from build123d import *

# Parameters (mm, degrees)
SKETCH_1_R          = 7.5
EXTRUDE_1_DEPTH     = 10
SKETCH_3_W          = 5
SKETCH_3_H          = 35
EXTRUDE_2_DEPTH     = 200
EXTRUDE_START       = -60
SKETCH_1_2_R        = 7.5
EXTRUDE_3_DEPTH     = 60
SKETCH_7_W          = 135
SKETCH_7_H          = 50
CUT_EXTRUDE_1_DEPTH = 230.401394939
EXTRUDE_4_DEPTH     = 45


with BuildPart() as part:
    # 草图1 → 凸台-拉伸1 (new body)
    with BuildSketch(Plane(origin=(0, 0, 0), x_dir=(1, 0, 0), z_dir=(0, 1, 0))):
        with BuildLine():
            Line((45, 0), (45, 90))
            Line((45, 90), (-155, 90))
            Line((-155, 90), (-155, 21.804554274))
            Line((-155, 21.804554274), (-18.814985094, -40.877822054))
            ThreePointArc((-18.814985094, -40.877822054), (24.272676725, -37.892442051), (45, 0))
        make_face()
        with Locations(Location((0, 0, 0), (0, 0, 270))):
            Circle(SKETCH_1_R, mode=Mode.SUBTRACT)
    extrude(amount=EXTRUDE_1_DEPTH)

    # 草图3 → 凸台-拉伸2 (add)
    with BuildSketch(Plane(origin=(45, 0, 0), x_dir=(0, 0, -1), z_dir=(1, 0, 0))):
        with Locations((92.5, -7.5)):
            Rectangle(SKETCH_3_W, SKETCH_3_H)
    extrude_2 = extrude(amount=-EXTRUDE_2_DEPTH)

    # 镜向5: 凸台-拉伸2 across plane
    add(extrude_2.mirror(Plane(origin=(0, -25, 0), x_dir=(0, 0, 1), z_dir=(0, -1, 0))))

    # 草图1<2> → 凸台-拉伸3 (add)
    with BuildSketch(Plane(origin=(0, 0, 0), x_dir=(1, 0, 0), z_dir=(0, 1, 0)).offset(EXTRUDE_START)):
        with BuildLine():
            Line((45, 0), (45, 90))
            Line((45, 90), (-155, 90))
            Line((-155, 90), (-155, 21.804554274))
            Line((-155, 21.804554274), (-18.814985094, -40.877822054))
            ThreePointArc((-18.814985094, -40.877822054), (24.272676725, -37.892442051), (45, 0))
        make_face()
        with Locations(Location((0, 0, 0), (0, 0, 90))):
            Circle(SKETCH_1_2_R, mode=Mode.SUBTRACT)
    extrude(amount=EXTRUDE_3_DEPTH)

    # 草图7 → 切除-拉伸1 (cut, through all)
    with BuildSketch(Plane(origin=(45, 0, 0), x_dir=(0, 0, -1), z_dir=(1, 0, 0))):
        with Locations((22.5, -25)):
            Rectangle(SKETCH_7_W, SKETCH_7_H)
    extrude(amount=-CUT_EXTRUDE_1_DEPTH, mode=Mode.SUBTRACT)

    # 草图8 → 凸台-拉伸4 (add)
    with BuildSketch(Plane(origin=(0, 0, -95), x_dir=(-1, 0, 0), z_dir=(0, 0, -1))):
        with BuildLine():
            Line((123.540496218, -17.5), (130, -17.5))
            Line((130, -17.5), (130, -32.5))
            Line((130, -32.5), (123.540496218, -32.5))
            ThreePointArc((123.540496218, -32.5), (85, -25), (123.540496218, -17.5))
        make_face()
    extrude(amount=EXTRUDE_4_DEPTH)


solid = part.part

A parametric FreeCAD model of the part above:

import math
import FreeCAD as App
import Part
import Sketcher

V = App.Vector
Q = App.Units.Quantity


def add_polygon(sketch, points):
    """Adds a closed chain of lines whose ends are joined by coincident constraints."""
    first, n = sketch.GeometryCount, len(points)
    for a, b in zip(points, points[1:] + points[:1]):
        sketch.addGeometry(Part.LineSegment(App.Vector(*a, 0), App.Vector(*b, 0)), False)
    for i in range(n):
        sketch.addConstraint(Sketcher.Constraint("Coincident", first + i, 2, first + (i + 1) % n, 1))

doc = App.newDocument("Part")
body = doc.addObject("PartDesign::Body", "Body")

# Sketch on XZ plane
sketch1 = body.newObject("Sketcher::SketchObject", "Sketch")
sketch1.AttachmentSupport = (doc.getObject("XZ_Plane"), [""])
sketch1.MapMode = "FlatFace"
sketch1.addGeometry(Part.LineSegment(V(45, 0, 0), V(45, -90, 0)), False)
sketch1.addGeometry(Part.LineSegment(V(45, -90, 0), V(-155, -90, 0)), False)
sketch1.addGeometry(Part.LineSegment(V(-155, -90, 0), V(-155, -22, 0)), False)
sketch1.addGeometry(Part.LineSegment(V(-155, -22, 0), V(-19, 41, 0)), False)
sketch1.addGeometry(Part.ArcOfCircle(Part.Circle(V(0, 0, 0), V(0, 0, 1), 45), math.radians(0), math.radians(115)), False)
sketch1.addGeometry(Part.Circle(V(0, 0, 0), V(0, 0, 1), 8), False)
sketch1.addConstraint(Sketcher.Constraint("Coincident", 0, 2, 1, 1))
sketch1.addConstraint(Sketcher.Constraint("Coincident", 1, 2, 2, 1))
sketch1.addConstraint(Sketcher.Constraint("Coincident", 2, 2, 3, 1))
sketch1.addConstraint(Sketcher.Constraint("Tangent", 3, 2, 4, 2))
sketch1.addConstraint(Sketcher.Constraint("Tangent", 4, 1, 0, 1))
sketch1.addConstraint(Sketcher.Constraint("Vertical", 0))
sketch1.addConstraint(Sketcher.Constraint("Horizontal", 1))
sketch1.addConstraint(Sketcher.Constraint("Vertical", 2))
sketch1.addConstraint(Sketcher.Constraint("Coincident", 4, 3, -1, 1))
sketch1.addConstraint(Sketcher.Constraint("Coincident", 5, 3, -1, 1))
sketch1.addConstraint(Sketcher.Constraint("Diameter", 5, Q("15 mm")))
sketch1.addConstraint(Sketcher.Constraint("Radius", 4, Q("45 mm")))
sketch1.addConstraint(Sketcher.Constraint("DistanceX", 1, 2, 1, 1, Q("200 mm")))
sketch1.addConstraint(Sketcher.Constraint("DistanceY", 0, 2, 0, 1, Q("90 mm")))
sketch1.addConstraint(Sketcher.Constraint("DistanceY", 2, 1, 2, 2, Q("68.195446 mm")))
pad1 = body.newObject("PartDesign::Pad", "Pad")
pad1.Profile = sketch1
pad1.Length = 10
pad1.Reversed = True

# Sketch on YZ plane
sketch2 = body.newObject("Sketcher::SketchObject", "Sketch001")
sketch2.AttachmentSupport = (doc.getObject("YZ_Plane"), [""])
sketch2.MapMode = "FlatFace"
sketch2.AttachmentOffset = App.Placement(V(0, 0, 45), App.Rotation())
add_polygon(sketch2, [(10, -90), (-25, -90), (-25, -95), (10, -95)])  # lines 0-3
sketch2.addConstraint(Sketcher.Constraint("Horizontal", 0))
sketch2.addConstraint(Sketcher.Constraint("Vertical", 1))
sketch2.addConstraint(Sketcher.Constraint("Horizontal", 2))
sketch2.addConstraint(Sketcher.Constraint("Vertical", 3))
sketch2.addConstraint(Sketcher.Constraint("DistanceX", 0, 2, 0, 1, Q("35 mm")))
sketch2.addConstraint(Sketcher.Constraint("DistanceY", 1, 2, 1, 1, Q("5 mm")))
sketch2.addConstraint(Sketcher.Constraint("DistanceX", 0, 2, -1, 1, Q("25 mm")))
sketch2.addConstraint(Sketcher.Constraint("DistanceY", 0, 2, -1, 1, Q("90 mm")))
pad2 = body.newObject("PartDesign::Pad", "Pad001")
pad2.Profile = sketch2
pad2.Length = 200
pad2.Reversed = True
doc.recompute()

datumplane = body.newObject("PartDesign::Plane", "DatumPlane")
datumplane.AttachmentSupport = (doc.getObject("XZ_Plane"), [""])
datumplane.MapMode = "FlatFace"
datumplane.AttachmentOffset = App.Placement(V(0, 0, 25), App.Rotation())
mirrored = body.newObject("PartDesign::Mirrored", "Mirrored")
mirrored.Originals = [pad2]
mirrored.MirrorPlane = (datumplane, [""])
body.Tip = mirrored

# Sketch on XZ plane
sketch3 = body.newObject("Sketcher::SketchObject", "Sketch002")
sketch3.AttachmentSupport = (doc.getObject("XZ_Plane"), [""])
sketch3.MapMode = "FlatFace"
sketch3.AttachmentOffset = App.Placement(V(0, 0, 60), App.Rotation())
sketch3.addGeometry(Part.LineSegment(V(45, 0, 0), V(45, -90, 0)), False)
sketch3.addGeometry(Part.LineSegment(V(45, -90, 0), V(-155, -90, 0)), False)
sketch3.addGeometry(Part.LineSegment(V(-155, -90, 0), V(-155, -22, 0)), False)
sketch3.addGeometry(Part.LineSegment(V(-155, -22, 0), V(-19, 41, 0)), False)
sketch3.addGeometry(Part.ArcOfCircle(Part.Circle(V(0, 0, 0), V(0, 0, 1), 45), math.radians(0), math.radians(115)), False)
sketch3.addGeometry(Part.Circle(V(0, 0, 0), V(0, 0, 1), 8), False)
sketch3.addConstraint(Sketcher.Constraint("Coincident", 0, 2, 1, 1))
sketch3.addConstraint(Sketcher.Constraint("Coincident", 1, 2, 2, 1))
sketch3.addConstraint(Sketcher.Constraint("Coincident", 2, 2, 3, 1))
sketch3.addConstraint(Sketcher.Constraint("Tangent", 3, 2, 4, 2))
sketch3.addConstraint(Sketcher.Constraint("Tangent", 4, 1, 0, 1))
sketch3.addConstraint(Sketcher.Constraint("Vertical", 0))
sketch3.addConstraint(Sketcher.Constraint("Horizontal", 1))
sketch3.addConstraint(Sketcher.Constraint("Vertical", 2))
sketch3.addConstraint(Sketcher.Constraint("Coincident", 4, 3, -1, 1))
sketch3.addConstraint(Sketcher.Constraint("Coincident", 5, 3, -1, 1))
sketch3.addConstraint(Sketcher.Constraint("Diameter", 5, Q("15 mm")))
sketch3.addConstraint(Sketcher.Constraint("Radius", 4, Q("45 mm")))
sketch3.addConstraint(Sketcher.Constraint("DistanceX", 1, 2, 1, 1, Q("200 mm")))
sketch3.addConstraint(Sketcher.Constraint("DistanceY", 0, 2, 0, 1, Q("90 mm")))
sketch3.addConstraint(Sketcher.Constraint("DistanceY", 2, 1, 2, 2, Q("68.195446 mm")))
pad3 = body.newObject("PartDesign::Pad", "Pad002")
pad3.Profile = sketch3
pad3.Length = 60
pad3.Reversed = True

# Sketch on YZ plane
sketch4 = body.newObject("Sketcher::SketchObject", "Sketch003")
sketch4.AttachmentSupport = (doc.getObject("YZ_Plane"), [""])
sketch4.MapMode = "FlatFace"
sketch4.AttachmentOffset = App.Placement(V(0, 0, 45), App.Rotation())
add_polygon(sketch4, [(0, 45), (-50, 45), (-50, -90), (0, -90)])  # lines 0-3
sketch4.addConstraint(Sketcher.Constraint("Horizontal", 0))
sketch4.addConstraint(Sketcher.Constraint("Vertical", 1))
sketch4.addConstraint(Sketcher.Constraint("Horizontal", 2))
sketch4.addConstraint(Sketcher.Constraint("Vertical", 3))
sketch4.addConstraint(Sketcher.Constraint("PointOnObject", 2, 2, -2))
sketch4.addConstraint(Sketcher.Constraint("DistanceX", 0, 2, 0, 1, Q("50 mm")))
sketch4.addConstraint(Sketcher.Constraint("DistanceY", 1, 2, 1, 1, Q("135 mm")))
sketch4.addConstraint(Sketcher.Constraint("DistanceY", -1, 1, 0, 2, Q("45 mm")))
pocket1 = body.newObject("PartDesign::Pocket", "Pocket")
pocket1.Profile = sketch4
pocket1.Type = "ThroughAll"

# Sketch on XY plane
sketch5 = body.newObject("Sketcher::SketchObject", "Sketch004")
sketch5.AttachmentSupport = (doc.getObject("XY_Plane"), [""])
sketch5.MapMode = "FlatFace"
sketch5.AttachmentOffset = App.Placement(V(0, 0, -95), App.Rotation())
sketch5.addGeometry(Part.LineSegment(V(-130, -18, 0), V(-124, -18, 0)), False)
sketch5.addGeometry(Part.ArcOfCircle(Part.Circle(V(-105, -25, 0), V(0, 0, 1), 20), math.radians(-158), math.radians(158)), False)
sketch5.addGeometry(Part.LineSegment(V(-124, -32, 0), V(-130, -32, 0)), False)
sketch5.addGeometry(Part.LineSegment(V(-130, -32, 0), V(-130, -18, 0)), False)
sketch5.addConstraint(Sketcher.Constraint("Coincident", 0, 2, 1, 2))
sketch5.addConstraint(Sketcher.Constraint("Coincident", 1, 1, 2, 1))
sketch5.addConstraint(Sketcher.Constraint("Coincident", 2, 2, 3, 1))
sketch5.addConstraint(Sketcher.Constraint("Coincident", 3, 2, 0, 1))
sketch5.addConstraint(Sketcher.Constraint("Horizontal", 0))
sketch5.addConstraint(Sketcher.Constraint("Horizontal", 2))
sketch5.addConstraint(Sketcher.Constraint("Vertical", 3))
sketch5.addConstraint(Sketcher.Constraint("Vertical", 0, 2, 1, 1))
sketch5.addConstraint(Sketcher.Constraint("Radius", 1, Q("20 mm")))
sketch5.addConstraint(Sketcher.Constraint("DistanceY", 3, 1, 3, 2, Q("15 mm")))
sketch5.addConstraint(Sketcher.Constraint("DistanceX", 1, 3, -1, 1, Q("105 mm")))
sketch5.addConstraint(Sketcher.Constraint("DistanceY", 1, 3, -1, 1, Q("25 mm")))
sketch5.addConstraint(Sketcher.Constraint("DistanceX", 2, 2, -1, 1, Q("130 mm")))
pad4 = body.newObject("PartDesign::Pad", "Pad003")
pad4.Profile = sketch5
pad4.Length = 45
pad4.Reversed = True

doc.recompute()
